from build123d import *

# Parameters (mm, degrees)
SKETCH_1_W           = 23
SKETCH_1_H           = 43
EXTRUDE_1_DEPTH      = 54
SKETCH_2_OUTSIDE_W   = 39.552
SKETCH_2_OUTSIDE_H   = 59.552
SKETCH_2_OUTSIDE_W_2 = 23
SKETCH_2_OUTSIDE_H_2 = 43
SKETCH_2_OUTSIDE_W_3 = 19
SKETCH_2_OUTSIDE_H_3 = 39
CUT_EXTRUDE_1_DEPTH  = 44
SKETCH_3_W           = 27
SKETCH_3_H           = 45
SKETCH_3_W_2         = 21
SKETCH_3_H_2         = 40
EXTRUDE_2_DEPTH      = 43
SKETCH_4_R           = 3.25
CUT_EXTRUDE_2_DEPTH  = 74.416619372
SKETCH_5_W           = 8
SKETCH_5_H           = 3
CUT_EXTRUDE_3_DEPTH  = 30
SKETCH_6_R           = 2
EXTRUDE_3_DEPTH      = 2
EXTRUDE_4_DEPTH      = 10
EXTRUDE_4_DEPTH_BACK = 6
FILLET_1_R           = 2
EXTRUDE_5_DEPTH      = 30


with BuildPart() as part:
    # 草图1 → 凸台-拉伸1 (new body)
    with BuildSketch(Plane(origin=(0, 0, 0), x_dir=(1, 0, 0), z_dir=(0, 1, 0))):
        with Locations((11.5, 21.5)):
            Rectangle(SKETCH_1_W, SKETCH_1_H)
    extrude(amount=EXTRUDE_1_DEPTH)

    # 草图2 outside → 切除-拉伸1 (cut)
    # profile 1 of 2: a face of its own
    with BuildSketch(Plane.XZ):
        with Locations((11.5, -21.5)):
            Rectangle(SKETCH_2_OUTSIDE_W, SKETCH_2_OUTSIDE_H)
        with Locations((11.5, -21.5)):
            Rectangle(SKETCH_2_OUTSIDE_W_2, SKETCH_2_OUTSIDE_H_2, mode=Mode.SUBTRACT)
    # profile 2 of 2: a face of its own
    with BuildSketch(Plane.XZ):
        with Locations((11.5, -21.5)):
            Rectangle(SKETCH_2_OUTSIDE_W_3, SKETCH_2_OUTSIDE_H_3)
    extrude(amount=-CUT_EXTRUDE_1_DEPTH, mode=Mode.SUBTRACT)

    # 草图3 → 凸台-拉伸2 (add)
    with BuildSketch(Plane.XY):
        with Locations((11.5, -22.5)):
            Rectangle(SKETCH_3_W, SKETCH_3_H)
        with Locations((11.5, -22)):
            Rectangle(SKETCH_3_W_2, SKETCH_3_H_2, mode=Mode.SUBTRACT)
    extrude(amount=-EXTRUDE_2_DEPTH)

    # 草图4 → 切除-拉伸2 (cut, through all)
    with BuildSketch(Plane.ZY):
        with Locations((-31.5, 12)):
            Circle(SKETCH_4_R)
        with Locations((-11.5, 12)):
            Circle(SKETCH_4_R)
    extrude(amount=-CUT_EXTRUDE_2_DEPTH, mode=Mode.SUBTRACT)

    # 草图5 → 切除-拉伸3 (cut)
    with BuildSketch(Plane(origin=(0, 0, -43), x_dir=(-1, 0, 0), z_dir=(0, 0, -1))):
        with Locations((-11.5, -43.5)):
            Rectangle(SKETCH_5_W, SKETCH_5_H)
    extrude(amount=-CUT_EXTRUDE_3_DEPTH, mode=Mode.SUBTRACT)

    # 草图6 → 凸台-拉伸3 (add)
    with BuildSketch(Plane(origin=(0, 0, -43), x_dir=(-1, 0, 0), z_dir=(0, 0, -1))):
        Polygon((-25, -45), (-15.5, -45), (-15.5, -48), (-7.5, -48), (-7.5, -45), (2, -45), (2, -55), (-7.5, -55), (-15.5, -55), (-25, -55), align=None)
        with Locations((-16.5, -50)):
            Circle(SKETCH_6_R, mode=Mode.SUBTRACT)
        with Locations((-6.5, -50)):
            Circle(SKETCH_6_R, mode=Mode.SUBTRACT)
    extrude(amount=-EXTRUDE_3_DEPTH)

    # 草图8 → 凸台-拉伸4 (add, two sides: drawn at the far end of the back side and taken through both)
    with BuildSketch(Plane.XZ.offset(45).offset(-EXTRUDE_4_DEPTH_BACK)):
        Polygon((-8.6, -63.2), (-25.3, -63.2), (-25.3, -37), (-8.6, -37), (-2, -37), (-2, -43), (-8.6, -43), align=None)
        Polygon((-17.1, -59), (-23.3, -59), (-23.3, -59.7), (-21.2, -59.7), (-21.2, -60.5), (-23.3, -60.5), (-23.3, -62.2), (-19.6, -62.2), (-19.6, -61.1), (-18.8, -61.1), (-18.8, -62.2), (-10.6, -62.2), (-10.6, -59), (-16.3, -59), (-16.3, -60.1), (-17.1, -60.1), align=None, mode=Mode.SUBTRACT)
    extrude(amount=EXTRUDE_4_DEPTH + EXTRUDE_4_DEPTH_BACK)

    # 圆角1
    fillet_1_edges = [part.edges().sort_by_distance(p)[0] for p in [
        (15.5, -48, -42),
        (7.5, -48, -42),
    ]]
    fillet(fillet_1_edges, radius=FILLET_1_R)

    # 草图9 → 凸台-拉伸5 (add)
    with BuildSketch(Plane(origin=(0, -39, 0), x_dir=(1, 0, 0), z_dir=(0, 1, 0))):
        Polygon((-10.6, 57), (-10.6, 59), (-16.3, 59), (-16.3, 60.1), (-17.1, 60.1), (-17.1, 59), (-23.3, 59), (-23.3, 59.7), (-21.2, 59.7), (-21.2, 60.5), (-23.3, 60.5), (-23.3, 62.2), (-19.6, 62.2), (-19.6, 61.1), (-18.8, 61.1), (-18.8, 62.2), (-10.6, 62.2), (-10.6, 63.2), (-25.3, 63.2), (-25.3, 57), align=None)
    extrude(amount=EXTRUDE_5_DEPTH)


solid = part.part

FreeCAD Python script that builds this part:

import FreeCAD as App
import Part
import Sketcher
from FreeCAD import Vector


def edges_at(feature, points):
    """Names of the edges that pass closest to the given points."""
    edges = feature.Shape.Edges
    near = lambda p: min(range(len(edges)), key=lambda i: edges[i].distToShape(Part.Vertex(*p))[0])
    return sorted({f"Edge{near(p) + 1}" for p in points})


def add_polygon(sketch, points):
    """Adds a closed chain of lines whose ends are joined by coincident constraints."""
    first, n = sketch.GeometryCount, len(points)
    for a, b in zip(points, points[1:] + points[:1]):
        sketch.addGeometry(Part.LineSegment(App.Vector(*a, 0), App.Vector(*b, 0)), False)
    for i in range(n):
        sketch.addConstraint(Sketcher.Constraint("Coincident", first + i, 2, first + (i + 1) % n, 1))

doc = App.newDocument("Part")
body = doc.addObject("PartDesign::Body", "Body")

sketch1 = body.newObject("Sketcher::SketchObject", "Sketch")
sketch1.AttachmentSupport = (doc.getObject("XZ_Plane"), [""])
sketch1.MapMode = "FlatFace"
add_polygon(sketch1, [(0, -43), (0, 0), (23, 0), (23, -43)])
sketch1.addConstraint(Sketcher.Constraint("Vertical", 0))
sketch1.addConstraint(Sketcher.Constraint("Horizontal", 1))
sketch1.addConstraint(Sketcher.Constraint("Vertical", 2))
sketch1.addConstraint(Sketcher.Constraint("Horizontal", 3))
sketch1.addConstraint(Sketcher.Constraint("Coincident", 0, 2, -1, 1))
sketch1.addConstraint(Sketcher.Constraint("DistanceX", 1, 1, 1, 2, 23.0))
sketch1.addConstraint(Sketcher.Constraint("DistanceY", 0, 1, 0, 2, 43.0))
pad1 = body.newObject("PartDesign::Pad", "Pad")
pad1.Profile = sketch1
pad1.Length = 54
pad1.Reversed = True

sketch2 = body.newObject("Sketcher::SketchObject", "Sketch001")
sketch2.AttachmentSupport = (doc.getObject("XZ_Plane"), [""])
sketch2.MapMode = "FlatFace"
add_polygon(sketch2, [(-8.276, 8.276), (-8.276, -51.276), (31.276, -51.276), (31.276, 8.276)])
add_polygon(sketch2, [(23, -43), (0, -43), (0, 0), (23, 0)])
add_polygon(sketch2, [(2, -2), (2, -41), (21, -41), (21, -2)])
sketch2.addConstraint(Sketcher.Constraint("Vertical", 0))
sketch2.addConstraint(Sketcher.Constraint("Horizontal", 1))
sketch2.addConstraint(Sketcher.Constraint("Vertical", 2))
sketch2.addConstraint(Sketcher.Constraint("Horizontal", 3))
sketch2.addConstraint(Sketcher.Constraint("Horizontal", 4))
sketch2.addConstraint(Sketcher.Constraint("Vertical", 5))
sketch2.addConstraint(Sketcher.Constraint("Horizontal", 6))
sketch2.addConstraint(Sketcher.Constraint("Vertical", 7))
sketch2.addConstraint(Sketcher.Constraint("Vertical", 8))
sketch2.addConstraint(Sketcher.Constraint("Horizontal", 9))
sketch2.addConstraint(Sketcher.Constraint("Vertical", 10))
sketch2.addConstraint(Sketcher.Constraint("Horizontal", 11))
sketch2.addConstraint(Sketcher.Constraint("Coincident", 5, 2, -1, 1))
sketch2.addConstraint(Sketcher.Constraint("DistanceX", 4, 2, 4, 1, 23.0))
sketch2.addConstraint(Sketcher.Constraint("DistanceX", 9, 1, 9, 2, 19.0))
sketch2.addConstraint(Sketcher.Constraint("DistanceY", 5, 1, 5, 2, 43.0))
sketch2.addConstraint(Sketcher.Constraint("DistanceY", 8, 2, 8, 1, 39.0))
sketch2.addConstraint(Sketcher.Constraint("DistanceX", -1, 1, 8, 2, 2.0))
sketch2.addConstraint(Sketcher.Constraint("DistanceY", 8, 2, -1, 1, 41.0))
sketch2.addConstraint(Sketcher.Constraint("DistanceX", 1, 1, 1, 2, 39.552))
sketch2.addConstraint(Sketcher.Constraint("DistanceY", 0, 2, 0, 1, 59.552))
sketch2.addConstraint(Sketcher.Constraint("DistanceX", 0, 2, -1, 1, 8.276))
sketch2.addConstraint(Sketcher.Constraint("DistanceY", 0, 2, -1, 1, 51.276))
pocket1 = body.newObject("PartDesign::Pocket", "Pocket")
pocket1.Profile = sketch2
pocket1.Length = 44

sketch3 = body.newObject("Sketcher::SketchObject", "Sketch002")
sketch3.AttachmentSupport = (doc.getObject("XY_Plane"), [""])
sketch3.MapMode = "FlatFace"
add_polygon(sketch3, [(-2, 0), (-2, -45), (25, -45), (25, 0)])
add_polygon(sketch3, [(22, -42), (1, -42), (1, -2), (22, -2)])
sketch3.addConstraint(Sketcher.Constraint("Vertical", 0))
sketch3.addConstraint(Sketcher.Constraint("Horizontal", 1))
sketch3.addConstraint(Sketcher.Constraint("Vertical", 2))
sketch3.addConstraint(Sketcher.Constraint("Horizontal", 3))
sketch3.addConstraint(Sketcher.Constraint("Horizontal", 4))
sketch3.addConstraint(Sketcher.Constraint("Vertical", 5))
sketch3.addConstraint(Sketcher.Constraint("Horizontal", 6))
sketch3.addConstraint(Sketcher.Constraint("Vertical", 7))
sketch3.addConstraint(Sketcher.Constraint("PointOnObject", 2, 2, -1))
sketch3.addConstraint(Sketcher.Constraint("DistanceX", 1, 1, 1, 2, 27.0))
sketch3.addConstraint(Sketcher.Constraint("DistanceX", 4, 2, 4, 1, 21.0))
sketch3.addConstraint(Sketcher.Constraint("DistanceY", 0, 2, 0, 1, 45.0))
sketch3.addConstraint(Sketcher.Constraint("DistanceY", 5, 1, 5, 2, 40.0))
sketch3.addConstraint(Sketcher.Constraint("DistanceX", 0, 2, -1, 1, 2.0))
sketch3.addConstraint(Sketcher.Constraint("DistanceX", -1, 1, 4, 2, 1.0))
sketch3.addConstraint(Sketcher.Constraint("DistanceY", 4, 2, -1, 1, 42.0))
pad2 = body.newObject("PartDesign::Pad", "Pad001")
pad2.Profile = sketch3
pad2.Length = 43
pad2.Reversed = True

sketch4 = body.newObject("Sketcher::SketchObject", "Sketch003")
sketch4.AttachmentSupport = (doc.getObject("YZ_Plane"), [""])
sketch4.MapMode = "FlatFace"
sketch4.addGeometry(Part.Circle(Vector(12, -31.5, 0), Vector(0, 0, 1), 3.25), False)
sketch4.addGeometry(Part.Circle(Vector(12, -11.5, 0), Vector(0, 0, 1), 3.25), False)
sketch4.addConstraint(Sketcher.Constraint("Equal", 0, 1))
sketch4.addConstraint(Sketcher.Constraint("Vertical", 0, 3, 1, 3))
sketch4.addConstraint(Sketcher.Constraint("Diameter", 0, 6.5))
sketch4.addConstraint(Sketcher.Constraint("DistanceX", -1, 1, 0, 3, 12.0))
sketch4.addConstraint(Sketcher.Constraint("DistanceY", 0, 3, 1, 3, 20.0))
sketch4.addConstraint(Sketcher.Constraint("DistanceY", 0, 3, -1, 1, 31.5))
pocket2 = body.newObject("PartDesign::Pocket", "Pocket001")
pocket2.Profile = sketch4
pocket2.Type = "ThroughAll"
pocket2.Reversed = True

sketch5 = body.newObject("Sketcher::SketchObject", "Sketch004")
sketch5.AttachmentSupport = (doc.getObject("XY_Plane"), [""])
sketch5.MapMode = "FlatFace"
sketch5.AttachmentOffset = App.Placement(Vector(0, 0, -43), App.Rotation())
add_polygon(sketch5, [(15.5, -42), (15.5, -45), (7.5, -45), (7.5, -42)])
sketch5.addConstraint(Sketcher.Constraint("Vertical", 0))
sketch5.addConstraint(Sketcher.Constraint("Horizontal", 1))
sketch5.addConstraint(Sketcher.Constraint("Vertical", 2))
sketch5.addConstraint(Sketcher.Constraint("Horizontal", 3))
sketch5.addConstraint(Sketcher.Constraint("DistanceX", 1, 2, 1, 1, 8.0))
sketch5.addConstraint(Sketcher.Constraint("DistanceY", 0, 2, 0, 1, 3.0))
sketch5.addConstraint(Sketcher.Constraint("DistanceY", 0, 2, -1, 1, 45.0))
sketch5.addConstraint(Sketcher.Constraint("DistanceX", -1, 1, 0, 2, 15.5))
pocket3 = body.newObject("PartDesign::Pocket", "Pocket002")
pocket3.Profile = sketch5
pocket3.Length = 30
pocket3.Reversed = True

sketch6 = body.newObject("Sketcher::SketchObject", "Sketch005")
sketch6.AttachmentSupport = (doc.getObject("XY_Plane"), [""])
sketch6.MapMode = "FlatFace"
sketch6.AttachmentOffset = App.Placement(Vector(0, 0, -43), App.Rotation())
add_polygon(sketch6, [(15.5, -45), (25, -45), (25, -55), (-2, -55), (-2, -45), (7.5, -45), (7.5, -48), (15.5, -48)])
sketch6.addGeometry(Part.Circle(Vector(6.5, -50, 0), Vector(0, 0, 1), 2), False)
sketch6.addGeometry(Part.Circle(Vector(16.5, -50, 0), Vector(0, 0, 1), 2), False)
sketch6.addConstraint(Sketcher.Constraint("Horizontal", 0))
sketch6.addConstraint(Sketcher.Constraint("Vertical", 1))
sketch6.addConstraint(Sketcher.Constraint("Horizontal", 2))
sketch6.addConstraint(Sketcher.Constraint("Vertical", 3))
sketch6.addConstraint(Sketcher.Constraint("Horizontal", 4))
sketch6.addConstraint(Sketcher.Constraint("Vertical", 5))
sketch6.addConstraint(Sketcher.Constraint("Horizontal", 6))
sketch6.addConstraint(Sketcher.Constraint("Vertical", 7))
sketch6.addConstraint(Sketcher.Constraint("Equal", 8, 9))
sketch6.addConstraint(Sketcher.Constraint("Horizontal", 8, 3, 9, 3))
sketch6.addConstraint(Sketcher.Constraint("Horizontal", 0, 2, 3, 2))
sketch6.addConstraint(Sketcher.Constraint("Equal", 0, 4))
sketch6.addConstraint(Sketcher.Constraint("Diameter", 8, 4.0))
sketch6.addConstraint(Sketcher.Constraint("DistanceX", 2, 2, 2, 1, 27.0))
sketch6.addConstraint(Sketcher.Constraint("DistanceX", 6, 1, 6, 2, 8.0))
sketch6.addConstraint(Sketcher.Constraint("DistanceY", 1, 2, 1, 1, 10.0))
sketch6.addConstraint(Sketcher.Constraint("DistanceY", 5, 2, 5, 1, 3.0))
sketch6.addConstraint(Sketcher.Constraint("DistanceY", 8, 3, -1, 1, 50.0))
sketch6.addConstraint(Sketcher.Constraint("DistanceX", -1, 1, 0, 2, 25.0))
sketch6.addConstraint(Sketcher.Constraint("DistanceY", 0, 2, -1, 1, 45.0))
sketch6.addConstraint(Sketcher.Constraint("DistanceX", 8, 3, 9, 3, 10.0))
sketch6.addConstraint(Sketcher.Constraint("DistanceX", 8, 3, 4, 2, 1.0))
pad3 = body.newObject("PartDesign::Pad", "Pad002")
pad3.Profile = sketch6
pad3.Length = 2

sketch7 = body.newObject("Sketcher::SketchObject", "Sketch006")
sketch7.AttachmentSupport = (doc.getObject("XZ_Plane"), [""])
sketch7.MapMode = "FlatFace"
sketch7.AttachmentOffset = App.Placement(Vector(0, 0, 45), App.Rotation())
add_polygon(sketch7, [(-25.3, -63.2), (-8.6, -63.2), (-8.6, -43), (-2, -43), (-2, -37), (-25.3, -37)])
add_polygon(sketch7, [(-17.1, -59), (-17.1, -60.1), (-16.3, -60.1), (-16.3, -59), (-10.6, -59), (-10.6, -62.2), (-18.8, -62.2), (-18.8, -61.1), (-19.6, -61.1), (-19.6, -62.2), (-23.3, -62.2), (-23.3, -60.5), (-21.2, -60.5), (-21.2, -59.7), (-23.3, -59.7), (-23.3, -59)])
sketch7.addConstraint(Sketcher.Constraint("Horizontal", 0))
sketch7.addConstraint(Sketcher.Constraint("Vertical", 1))
sketch7.addConstraint(Sketcher.Constraint("Horizontal", 2))
sketch7.addConstraint(Sketcher.Constraint("Vertical", 3))
sketch7.addConstraint(Sketcher.Constraint("Horizontal", 4))
sketch7.addConstraint(Sketcher.Constraint("Vertical", 5))
sketch7.addConstraint(Sketcher.Constraint("Vertical", 6))
sketch7.addConstraint(Sketcher.Constraint("Horizontal", 7))
sketch7.addConstraint(Sketcher.Constraint("Vertical", 8))
sketch7.addConstraint(Sketcher.Constraint("Horizontal", 9))
sketch7.addConstraint(Sketcher.Constraint("Vertical", 10))
sketch7.addConstraint(Sketcher.Constraint("Horizontal", 11))
sketch7.addConstraint(Sketcher.Constraint("Vertical", 12))
sketch7.addConstraint(Sketcher.Constraint("Horizontal", 13))
sketch7.addConstraint(Sketcher.Constraint("Vertical", 14))
sketch7.addConstraint(Sketcher.Constraint("Horizontal", 15))
sketch7.addConstraint(Sketcher.Constraint("Vertical", 16))
sketch7.addConstraint(Sketcher.Constraint("Horizontal", 17))
sketch7.addConstraint(Sketcher.Constraint("Vertical", 18))
sketch7.addConstraint(Sketcher.Constraint("Horizontal", 19))
sketch7.addConstraint(Sketcher.Constraint("Vertical", 20))
sketch7.addConstraint(Sketcher.Constraint("Horizontal", 21))
sketch7.addConstraint(Sketcher.Constraint("Horizontal", 11, 2, 14, 2))
sketch7.addConstraint(Sketcher.Constraint("Horizontal", 9, 2, 20, 2))
sketch7.addConstraint(Sketcher.Constraint("Vertical", 16, 2, 19, 2))
sketch7.addConstraint(Sketcher.Constraint("Equal", 7, 13))
sketch7.addConstraint(Sketcher.Constraint("Equal", 8, 12))
sketch7.addConstraint(Sketcher.Constraint("Equal", 13, 18))
sketch7.addConstraint(Sketcher.Constraint("DistanceY", 3, 1, 3, 2, 6.0))
sketch7.addConstraint(Sketcher.Constraint("DistanceX", 0, 1, 0, 2, 16.7))
sketch7.addConstraint(Sketcher.Constraint("DistanceX", 2, 1, 2, 2, 6.6))
sketch7.addConstraint(Sketcher.Constraint("DistanceX", 7, 1, 7, 2, 0.8))
sketch7.addConstraint(Sketcher.Constraint("DistanceX", 9, 1, 9, 2, 5.7))
sketch7.addConstraint(Sketcher.Constraint("DistanceX", 11, 2, 11, 1, 8.2))
sketch7.addConstraint(Sketcher.Constraint("DistanceX", 15, 2, 15, 1, 3.7))
sketch7.addConstraint(Sketcher.Constraint("DistanceX", 17, 1, 17, 2, 2.1))
sketch7.addConstraint(Sketcher.Constraint("DistanceY", 1, 1, 1, 2, 20.2))
sketch7.addConstraint(Sketcher.Constraint("DistanceY", 6, 2, 6, 1, 1.1))
sketch7.addConstraint(Sketcher.Constraint("DistanceY", 10, 2, 10, 1, 3.2))
sketch7.addConstraint(Sketcher.Constraint("DistanceY", 16, 1, 16, 2, 1.7))
sketch7.addConstraint(Sketcher.Constraint("DistanceY", 1, 2, -1, 1, 43.0))
sketch7.addConstraint(Sketcher.Constraint("DistanceX", 2, 2, -1, 1, 2.0))
sketch7.addConstraint(Sketcher.Constraint("DistanceY", 8, 2, -1, 1, 59.0))
sketch7.addConstraint(Sketcher.Constraint("DistanceX", 5, 2, 7, 2, 9.0))
pad4 = body.newObject("PartDesign::Pad", "Pad003")
pad4.Profile = sketch7
pad4.Type = "TwoLengths"
pad4.Length = 10
pad4.Length2 = 6
doc.recompute()

fillet = body.newObject("PartDesign::Fillet", "Fillet")
fillet.Base = (pad4, edges_at(pad4, [(15.5, -48, -42), (7.5, -48, -42)]))
fillet.Radius = 2

sketch8 = body.newObject("Sketcher::SketchObject", "Sketch007")
sketch8.AttachmentSupport = (doc.getObject("XZ_Plane"), [""])
sketch8.MapMode = "FlatFace"
sketch8.AttachmentOffset = App.Placement(Vector(0, 0, 39), App.Rotation())
add_polygon(sketch8, [(-10.6, -57), (-10.6, -59), (-16.3, -59), (-16.3, -60.1), (-17.1, -60.1), (-17.1, -59), (-23.3, -59), (-23.3, -59.7), (-21.2, -59.7), (-21.2, -60.5), (-23.3, -60.5), (-23.3, -62.2), (-19.6, -62.2), (-19.6, -61.1), (-18.8, -61.1), (-18.8, -62.2), (-10.6, -62.2), (-10.6, -63.2), (-25.3, -63.2), (-25.3, -57)])
sketch8.addConstraint(Sketcher.Constraint("Vertical", 0))
sketch8.addConstraint(Sketcher.Constraint("Horizontal", 1))
sketch8.addConstraint(Sketcher.Constraint("Vertical", 2))
sketch8.addConstraint(Sketcher.Constraint("Horizontal", 3))
sketch8.addConstraint(Sketcher.Constraint("Vertical", 4))
sketch8.addConstraint(Sketcher.Constraint("Horizontal", 5))
sketch8.addConstraint(Sketcher.Constraint("Vertical", 6))
sketch8.addConstraint(Sketcher.Constraint("Horizontal", 7))
sketch8.addConstraint(Sketcher.Constraint("Vertical", 8))
sketch8.addConstraint(Sketcher.Constraint("Horizontal", 9))
sketch8.addConstraint(Sketcher.Constraint("Vertical", 10))
sketch8.addConstraint(Sketcher.Constraint("Horizontal", 11))
sketch8.addConstraint(Sketcher.Constraint("Vertical", 12))
sketch8.addConstraint(Sketcher.Constraint("Horizontal", 13))
sketch8.addConstraint(Sketcher.Constraint("Vertical", 14))
sketch8.addConstraint(Sketcher.Constraint("Horizontal", 15))
sketch8.addConstraint(Sketcher.Constraint("Vertical", 16))
sketch8.addConstraint(Sketcher.Constraint("Horizontal", 17))
sketch8.addConstraint(Sketcher.Constraint("Vertical", 18))
sketch8.addConstraint(Sketcher.Constraint("Horizontal", 19))
sketch8.addConstraint(Sketcher.Constraint("Horizontal", 1, 2, 4, 2))
sketch8.addConstraint(Sketcher.Constraint("Horizontal", 11, 2, 14, 2))
sketch8.addConstraint(Sketcher.Constraint("Vertical", 6, 2, 9, 2))
sketch8.addConstraint(Sketcher.Constraint("Vertical", 0, 2, 15, 2))
sketch8.addConstraint(Sketcher.Constraint("Equal", 3, 13))
sketch8.addConstraint(Sketcher.Constraint("Equal", 13, 8))
sketch8.addConstraint(Sketcher.Constraint("Equal", 4, 12))
sketch8.addConstraint(Sketcher.Constraint("Equal", 5, 18))
sketch8.addConstraint(Sketcher.Constraint("DistanceY", 0, 2, 0, 1, 2.0))
sketch8.addConstraint(Sketcher.Constraint("DistanceY", 16, 2, 16, 1, 1.0))
sketch8.addConstraint(Sketcher.Constraint("DistanceX", 1, 2, 1, 1, 5.7))
sketch8.addConstraint(Sketcher.Constraint("DistanceX", 3, 2, 3, 1, 0.8))
sketch8.addConstraint(Sketcher.Constraint("DistanceX", 5, 2, 5, 1, 6.2))
sketch8.addConstraint(Sketcher.Constraint("DistanceX", 7, 1, 7, 2, 2.1))
sketch8.addConstraint(Sketcher.Constraint("DistanceX", 11, 1, 11, 2, 3.7))
sketch8.addConstraint(Sketcher.Constraint("DistanceX", 17, 2, 17, 1, 14.7))
sketch8.addConstraint(Sketcher.Constraint("DistanceY", 2, 2, 2, 1, 1.1))
sketch8.addConstraint(Sketcher.Constraint("DistanceY", 6, 2, 6, 1, 0.7))
sketch8.addConstraint(Sketcher.Constraint("DistanceY", 0, 2, -1, 1, 59.0))
sketch8.addConstraint(Sketcher.Constraint("DistanceX", 0, 2, -1, 1, 10.6))
pad5 = body.newObject("PartDesign::Pad", "Pad004")
pad5.Profile = sketch8
pad5.Length = 30
pad5.Reversed = True

doc.recompute()
